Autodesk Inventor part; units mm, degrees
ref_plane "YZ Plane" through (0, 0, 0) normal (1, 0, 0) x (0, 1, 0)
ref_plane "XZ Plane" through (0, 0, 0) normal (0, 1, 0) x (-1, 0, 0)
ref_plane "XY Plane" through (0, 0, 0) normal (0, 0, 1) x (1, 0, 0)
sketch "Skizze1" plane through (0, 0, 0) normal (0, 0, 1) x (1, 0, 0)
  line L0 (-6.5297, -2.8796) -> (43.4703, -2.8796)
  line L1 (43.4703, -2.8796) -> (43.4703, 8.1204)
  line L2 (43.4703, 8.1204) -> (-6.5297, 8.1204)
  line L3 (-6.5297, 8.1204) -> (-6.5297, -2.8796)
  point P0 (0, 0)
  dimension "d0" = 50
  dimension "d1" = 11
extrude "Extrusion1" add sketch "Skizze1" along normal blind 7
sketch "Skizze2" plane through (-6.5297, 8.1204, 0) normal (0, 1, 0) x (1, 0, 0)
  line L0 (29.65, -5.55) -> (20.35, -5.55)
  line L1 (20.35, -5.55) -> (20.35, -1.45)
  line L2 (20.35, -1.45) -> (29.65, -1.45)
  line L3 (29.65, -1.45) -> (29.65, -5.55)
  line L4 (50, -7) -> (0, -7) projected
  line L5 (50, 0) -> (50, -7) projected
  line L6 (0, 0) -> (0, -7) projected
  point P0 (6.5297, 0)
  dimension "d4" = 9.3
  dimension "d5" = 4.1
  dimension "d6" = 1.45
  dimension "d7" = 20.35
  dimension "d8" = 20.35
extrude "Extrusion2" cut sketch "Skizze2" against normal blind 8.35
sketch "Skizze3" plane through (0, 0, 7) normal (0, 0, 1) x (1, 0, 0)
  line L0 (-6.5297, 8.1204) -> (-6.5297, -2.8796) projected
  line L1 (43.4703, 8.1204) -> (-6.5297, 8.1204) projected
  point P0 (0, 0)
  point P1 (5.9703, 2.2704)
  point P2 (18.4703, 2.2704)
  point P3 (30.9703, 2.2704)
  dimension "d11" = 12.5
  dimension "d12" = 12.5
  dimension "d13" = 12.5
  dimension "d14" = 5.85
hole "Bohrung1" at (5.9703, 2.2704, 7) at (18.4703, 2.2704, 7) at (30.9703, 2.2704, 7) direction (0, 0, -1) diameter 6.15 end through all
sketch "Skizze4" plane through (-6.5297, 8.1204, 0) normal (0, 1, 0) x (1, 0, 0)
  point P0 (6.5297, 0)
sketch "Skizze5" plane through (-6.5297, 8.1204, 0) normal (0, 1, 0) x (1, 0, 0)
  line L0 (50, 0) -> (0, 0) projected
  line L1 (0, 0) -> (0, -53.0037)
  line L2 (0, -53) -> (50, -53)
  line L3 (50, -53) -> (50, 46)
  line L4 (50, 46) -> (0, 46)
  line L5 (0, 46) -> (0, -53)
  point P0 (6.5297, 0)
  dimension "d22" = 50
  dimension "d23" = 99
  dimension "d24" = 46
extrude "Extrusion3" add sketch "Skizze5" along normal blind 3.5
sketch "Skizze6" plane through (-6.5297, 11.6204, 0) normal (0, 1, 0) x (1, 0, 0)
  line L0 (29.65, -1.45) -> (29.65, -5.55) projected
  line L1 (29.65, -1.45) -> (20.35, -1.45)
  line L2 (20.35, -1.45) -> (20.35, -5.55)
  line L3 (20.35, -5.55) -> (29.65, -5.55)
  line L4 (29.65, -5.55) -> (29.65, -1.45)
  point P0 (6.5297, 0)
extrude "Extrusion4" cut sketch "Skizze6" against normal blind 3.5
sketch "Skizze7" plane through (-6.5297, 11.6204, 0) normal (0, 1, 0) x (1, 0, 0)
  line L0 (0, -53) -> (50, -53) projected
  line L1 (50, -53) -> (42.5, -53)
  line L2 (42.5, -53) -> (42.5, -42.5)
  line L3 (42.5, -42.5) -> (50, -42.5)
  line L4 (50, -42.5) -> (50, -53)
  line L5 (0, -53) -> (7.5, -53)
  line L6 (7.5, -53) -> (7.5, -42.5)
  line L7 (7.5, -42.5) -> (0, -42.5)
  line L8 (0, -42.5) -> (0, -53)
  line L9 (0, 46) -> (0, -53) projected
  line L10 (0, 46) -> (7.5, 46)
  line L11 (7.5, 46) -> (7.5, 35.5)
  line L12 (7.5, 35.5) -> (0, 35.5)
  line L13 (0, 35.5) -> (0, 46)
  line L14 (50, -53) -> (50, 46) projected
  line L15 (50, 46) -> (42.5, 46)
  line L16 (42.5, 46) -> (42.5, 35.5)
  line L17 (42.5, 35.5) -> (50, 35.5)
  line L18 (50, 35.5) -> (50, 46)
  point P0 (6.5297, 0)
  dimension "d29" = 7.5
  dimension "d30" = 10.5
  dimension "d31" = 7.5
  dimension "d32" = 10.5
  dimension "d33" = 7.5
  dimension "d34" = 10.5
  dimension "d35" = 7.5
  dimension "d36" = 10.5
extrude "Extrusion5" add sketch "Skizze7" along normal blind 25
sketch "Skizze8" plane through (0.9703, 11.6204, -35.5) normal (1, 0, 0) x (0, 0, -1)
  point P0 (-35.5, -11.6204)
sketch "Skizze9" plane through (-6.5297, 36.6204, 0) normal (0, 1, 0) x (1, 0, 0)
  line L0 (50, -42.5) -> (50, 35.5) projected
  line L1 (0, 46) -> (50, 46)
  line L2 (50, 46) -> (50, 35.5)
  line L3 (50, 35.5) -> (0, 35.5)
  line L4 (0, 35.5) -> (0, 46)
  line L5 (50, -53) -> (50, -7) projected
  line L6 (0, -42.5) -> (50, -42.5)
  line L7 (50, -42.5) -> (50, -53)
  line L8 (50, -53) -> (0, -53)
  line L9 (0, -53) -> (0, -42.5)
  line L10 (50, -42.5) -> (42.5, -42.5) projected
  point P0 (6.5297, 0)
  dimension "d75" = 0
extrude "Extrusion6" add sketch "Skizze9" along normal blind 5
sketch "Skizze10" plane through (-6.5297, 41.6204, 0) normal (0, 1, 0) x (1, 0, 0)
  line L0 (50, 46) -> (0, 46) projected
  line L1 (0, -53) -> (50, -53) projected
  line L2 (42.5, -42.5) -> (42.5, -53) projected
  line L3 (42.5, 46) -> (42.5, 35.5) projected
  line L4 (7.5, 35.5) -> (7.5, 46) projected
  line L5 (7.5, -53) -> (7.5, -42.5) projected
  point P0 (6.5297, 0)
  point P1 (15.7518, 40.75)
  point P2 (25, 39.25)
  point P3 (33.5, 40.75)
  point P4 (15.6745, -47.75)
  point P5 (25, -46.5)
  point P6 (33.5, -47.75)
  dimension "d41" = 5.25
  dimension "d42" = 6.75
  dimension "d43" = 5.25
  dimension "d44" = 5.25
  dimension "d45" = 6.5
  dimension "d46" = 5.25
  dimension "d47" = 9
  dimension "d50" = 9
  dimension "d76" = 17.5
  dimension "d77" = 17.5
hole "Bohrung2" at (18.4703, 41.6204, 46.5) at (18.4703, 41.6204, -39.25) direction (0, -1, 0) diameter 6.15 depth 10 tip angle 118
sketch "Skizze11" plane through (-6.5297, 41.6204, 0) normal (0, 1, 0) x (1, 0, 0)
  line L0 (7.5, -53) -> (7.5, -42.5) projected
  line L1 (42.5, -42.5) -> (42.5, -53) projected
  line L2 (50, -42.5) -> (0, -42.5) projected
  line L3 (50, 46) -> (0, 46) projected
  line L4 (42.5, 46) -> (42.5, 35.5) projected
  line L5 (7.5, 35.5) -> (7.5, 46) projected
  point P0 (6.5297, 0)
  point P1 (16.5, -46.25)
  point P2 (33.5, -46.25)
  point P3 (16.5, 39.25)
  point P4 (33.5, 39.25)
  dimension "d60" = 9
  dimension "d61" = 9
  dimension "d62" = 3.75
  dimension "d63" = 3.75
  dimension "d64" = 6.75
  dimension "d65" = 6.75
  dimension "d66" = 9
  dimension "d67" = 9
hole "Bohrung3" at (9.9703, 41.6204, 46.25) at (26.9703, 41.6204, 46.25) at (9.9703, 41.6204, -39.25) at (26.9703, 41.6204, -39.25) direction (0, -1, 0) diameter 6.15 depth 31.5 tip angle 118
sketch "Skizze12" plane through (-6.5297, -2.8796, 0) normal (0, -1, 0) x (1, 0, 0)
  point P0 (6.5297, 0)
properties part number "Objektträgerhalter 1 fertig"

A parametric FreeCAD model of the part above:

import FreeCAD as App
import Part
import Sketcher


def add_polygon(sketch, points):
    """Adds a closed chain of lines whose ends are joined by coincident constraints."""
    first, n = sketch.GeometryCount, len(points)
    for a, b in zip(points, points[1:] + points[:1]):
        sketch.addGeometry(Part.LineSegment(App.Vector(*a, 0), App.Vector(*b, 0)), False)
    for i in range(n):
        sketch.addConstraint(Sketcher.Constraint("Coincident", first + i, 2, first + (i + 1) % n, 1))

doc = App.newDocument("Part")
body = doc.addObject("PartDesign::Body", "Body")

# Sketch on XY plane
sketch1 = body.newObject("Sketcher::SketchObject", "Sketch")
sketch1.AttachmentSupport = (doc.getObject("XY_Plane"), [""])
sketch1.MapMode = "FlatFace"
add_polygon(sketch1, [(-7, 8), (-7, -3), (43, -3), (43, 8)])  # lines 0-3
sketch1.addConstraint([
    Sketcher.Constraint("Vertical", 0),
    Sketcher.Constraint("Horizontal", 1),
    Sketcher.Constraint("Vertical", 2),
    Sketcher.Constraint("Horizontal", 3),
    Sketcher.Constraint("DistanceX", 1, 1, 1, 2, 50.0),
    Sketcher.Constraint("DistanceY", 0, 2, 0, 1, 11.0),
    Sketcher.Constraint("DistanceX", 0, 2, -1, 1, 6.5297),
    Sketcher.Constraint("DistanceY", 0, 2, -1, 1, 2.8796),
])
pad1 = body.newObject("PartDesign::Pad", "Pad")
pad1.Profile = sketch1
pad1.Length = 7

# Sketch on XZ plane
sketch2 = body.newObject("Sketcher::SketchObject", "Sketch001")
sketch2.AttachmentSupport = (doc.getObject("XZ_Plane"), [""])
sketch2.MapMode = "FlatFace"
sketch2.AttachmentOffset = App.Placement(App.Vector(0, 0, -8.1204), App.Rotation())
add_polygon(sketch2, [(13.8, 5.5), (23.1, 5.5), (23.1, 1.4), (13.8, 1.4)])  # lines 0-3
sketch2.addConstraint([
    Sketcher.Constraint("Horizontal", 0),
    Sketcher.Constraint("Vertical", 1),
    Sketcher.Constraint("Horizontal", 2),
    Sketcher.Constraint("Vertical", 3),
    Sketcher.Constraint("DistanceX", 0, 1, 0, 2, 9.3),
    Sketcher.Constraint("DistanceY", 1, 2, 1, 1, 4.1),
    Sketcher.Constraint("DistanceY", -1, 1, 1, 2, 1.45),
    Sketcher.Constraint("DistanceX", -1, 1, 0, 2, 23.1203),
])
pocket1 = body.newObject("PartDesign::Pocket", "Pocket")
pocket1.Profile = sketch2
pocket1.Length = 8.35
pocket1.Reversed = True

# Sketch on XY plane
sketch3 = body.newObject("Sketcher::SketchObject", "Sketch002")
sketch3.AttachmentSupport = (doc.getObject("XY_Plane"), [""])
sketch3.MapMode = "FlatFace"
sketch3.AttachmentOffset = App.Placement(App.Vector(0, 0, 7), App.Rotation())
sketch3.addGeometry([
    Part.Circle(App.Vector(6, 2.3, 0), App.Vector(0, 0, 1), 3.1),
    Part.Circle(App.Vector(18.5, 2.3, 0), App.Vector(0, 0, 1), 3.1),
    Part.Circle(App.Vector(31, 2.3, 0), App.Vector(0, 0, 1), 3.1),
], False)
sketch3.addConstraint([
    Sketcher.Constraint("Equal", 0, 1),
    Sketcher.Constraint("Equal", 1, 2),
    Sketcher.Constraint("Horizontal", 0, 3, 1, 3),
    Sketcher.Constraint("Horizontal", 1, 3, 2, 3),
    Sketcher.Constraint("Diameter", 0, 6.15),
    Sketcher.Constraint("DistanceX", 0, 3, 2, 3, 25.0),
    Sketcher.Constraint("DistanceX", 0, 3, 1, 3, 12.5),
    Sketcher.Constraint("DistanceX", -1, 1, 0, 3, 5.9703),
    Sketcher.Constraint("DistanceY", -1, 1, 0, 3, 2.2704),
])
doc.recompute()
hole = body.newObject("PartDesign::Hole", "Hole")
hole.Profile = sketch3
hole.ThreadType = "None"
hole.Diameter = 6.15
hole.DepthType = "ThroughAll"

# Sketch on XZ plane
sketch4 = body.newObject("Sketcher::SketchObject", "Sketch003")
sketch4.AttachmentSupport = (doc.getObject("XZ_Plane"), [""])
sketch4.MapMode = "FlatFace"
sketch4.AttachmentOffset = App.Placement(App.Vector(0, 0, -8.1204), App.Rotation())
add_polygon(sketch4, [(43, 53), (43, -46), (-7, -46), (-7, 53)])  # lines 0-3
sketch4.addConstraint([
    Sketcher.Constraint("Vertical", 0),
    Sketcher.Constraint("Horizontal", 1),
    Sketcher.Constraint("Vertical", 2),
    Sketcher.Constraint("Horizontal", 3),
    Sketcher.Constraint("DistanceX", 1, 2, 1, 1, 50.0),
    Sketcher.Constraint("DistanceY", 0, 2, 0, 1, 99.0),
    Sketcher.Constraint("DistanceY", 0, 2, -1, 1, 46.0),
    Sketcher.Constraint("DistanceX", -1, 1, 0, 2, 43.4703),
])
pad2 = body.newObject("PartDesign::Pad", "Pad001")
pad2.Profile = sketch4
pad2.Length = 3.5
pad2.Reversed = True

# Sketch on XZ plane
sketch5 = body.newObject("Sketcher::SketchObject", "Sketch004")
sketch5.AttachmentSupport = (doc.getObject("XZ_Plane"), [""])
sketch5.MapMode = "FlatFace"
sketch5.AttachmentOffset = App.Placement(App.Vector(0, 0, -11.6204), App.Rotation())
add_polygon(sketch5, [(23.1, 5.5), (23.1, 1.4), (13.8, 1.4), (13.8, 5.5)])  # lines 0-3
sketch5.addConstraint([
    Sketcher.Constraint("Vertical", 0),
    Sketcher.Constraint("Horizontal", 1),
    Sketcher.Constraint("Vertical", 2),
    Sketcher.Constraint("Horizontal", 3),
    Sketcher.Constraint("DistanceX", 1, 2, 1, 1, 9.3),
    Sketcher.Constraint("DistanceY", 0, 2, 0, 1, 4.1),
    Sketcher.Constraint("DistanceY", -1, 1, 0, 2, 1.45),
    Sketcher.Constraint("DistanceX", -1, 1, 0, 2, 23.1203),
])
pocket2 = body.newObject("PartDesign::Pocket", "Pocket001")
pocket2.Profile = sketch5
pocket2.Length = 3.5
pocket2.Reversed = True

# Sketch on XZ plane
sketch6 = body.newObject("Sketcher::SketchObject", "Sketch005")
sketch6.AttachmentSupport = (doc.getObject("XZ_Plane"), [""])
sketch6.MapMode = "FlatFace"
sketch6.AttachmentOffset = App.Placement(App.Vector(0, 0, -11.6204), App.Rotation())
add_polygon(sketch6, [(-7, 42), (-7, 53), (1, 53), (1, 42)])  # lines 0-3
add_polygon(sketch6, [(-7, -46), (-7, -36), (1, -36), (1, -46)])  # lines 4-7
add_polygon(sketch6, [(36, -36), (43, -36), (43, -46), (36, -46)])  # lines 8-11
add_polygon(sketch6, [(36, 42), (36, 53), (43, 53), (43, 42)])  # lines 12-15
sketch6.addConstraint([
    Sketcher.Constraint("Vertical", 0),
    Sketcher.Constraint("Horizontal", 1),
    Sketcher.Constraint("Vertical", 2),
    Sketcher.Constraint("Horizontal", 3),
    Sketcher.Constraint("Vertical", 4),
    Sketcher.Constraint("Horizontal", 5),
    Sketcher.Constraint("Vertical", 6),
    Sketcher.Constraint("Horizontal", 7),
    Sketcher.Constraint("Horizontal", 8),
    Sketcher.Constraint("Vertical", 9),
    Sketcher.Constraint("Horizontal", 10),
    Sketcher.Constraint("Vertical", 11),
    Sketcher.Constraint("Vertical", 12),
    Sketcher.Constraint("Horizontal", 13),
    Sketcher.Constraint("Vertical", 14),
    Sketcher.Constraint("Horizontal", 15),
    Sketcher.Constraint("Horizontal", 5, 2, 8, 2),
    Sketcher.Constraint("Horizontal", 7, 2, 9, 2),
    Sketcher.Constraint("Horizontal", 1, 2, 12, 2),
    Sketcher.Constraint("Horizontal", 3, 2, 14, 2),
    Sketcher.Constraint("Vertical", 3, 2, 4, 2),
    Sketcher.Constraint("Vertical", 2, 2, 5, 2),
    Sketcher.Constraint("Vertical", 11, 2, 12, 2),
    Sketcher.Constraint("Vertical", 9, 2, 13, 2),
    Sketcher.Constraint("Equal", 7, 8),
    Sketcher.Constraint("Equal", 2, 4),
    Sketcher.Constraint("DistanceX", 1, 1, 1, 2, 7.5),
    Sketcher.Constraint("DistanceY", 0, 1, 0, 2, 10.5),
    Sketcher.Constraint("DistanceY", -1, 1, 0, 2, 53.0),
    Sketcher.Constraint("DistanceY", 6, 2, -1, 1, 46.0),
    Sketcher.Constraint("DistanceX", 4, 2, 8, 2, 50.0),
    Sketcher.Constraint("DistanceX", 0, 2, -1, 1, 6.5297),
])
pad3 = body.newObject("PartDesign::Pad", "Pad002")
pad3.Profile = sketch6
pad3.Length = 25
pad3.Reversed = True

# Sketch on XZ plane
sketch7 = body.newObject("Sketcher::SketchObject", "Sketch006")
sketch7.AttachmentSupport = (doc.getObject("XZ_Plane"), [""])
sketch7.MapMode = "FlatFace"
sketch7.AttachmentOffset = App.Placement(App.Vector(0, 0, -36.6204), App.Rotation())
add_polygon(sketch7, [(-7, -36), (43, -36), (43, -46), (-7, -46)])  # lines 0-3
add_polygon(sketch7, [(43, 53), (43, 42), (-7, 42), (-7, 53)])  # lines 4-7
sketch7.addConstraint([
    Sketcher.Constraint("Horizontal", 0),
    Sketcher.Constraint("Vertical", 1),
    Sketcher.Constraint("Horizontal", 2),
    Sketcher.Constraint("Vertical", 3),
    Sketcher.Constraint("Vertical", 4),
    Sketcher.Constraint("Horizontal", 5),
    Sketcher.Constraint("Vertical", 6),
    Sketcher.Constraint("Horizontal", 7),
    Sketcher.Constraint("Vertical", 1, 2, 4, 2),
    Sketcher.Constraint("Vertical", 3, 2, 5, 2),
    Sketcher.Constraint("Equal", 3, 4),
    Sketcher.Constraint("DistanceX", 0, 1, 0, 2, 50.0),
    Sketcher.Constraint("DistanceY", 1, 2, 1, 1, 10.5),
    Sketcher.Constraint("DistanceY", 1, 2, -1, 1, 46.0),
    Sketcher.Constraint("DistanceY", -1, 1, 6, 2, 53.0),
    Sketcher.Constraint("DistanceX", -1, 1, 0, 2, 43.4703),
])
pad4 = body.newObject("PartDesign::Pad", "Pad003")
pad4.Profile = sketch7
pad4.Length = 5
pad4.Reversed = True

# Sketch on XZ plane
sketch8 = body.newObject("Sketcher::SketchObject", "Sketch007")
sketch8.AttachmentSupport = (doc.getObject("XZ_Plane"), [""])
sketch8.MapMode = "FlatFace"
sketch8.AttachmentOffset = App.Placement(App.Vector(0, 0, -41.6204), App.Rotation())
sketch8.addGeometry([
    Part.Circle(App.Vector(18.5, 46.5, 0), App.Vector(0, 0, 1), 3.1),
    Part.Circle(App.Vector(18.5, -39.2, 0), App.Vector(0, 0, 1), 3.1),
], False)
sketch8.addConstraint([
    Sketcher.Constraint("Equal", 0, 1),
    Sketcher.Constraint("Vertical", 0, 3, 1, 3),
    Sketcher.Constraint("Diameter", 0, 6.15),
    Sketcher.Constraint("DistanceY", -1, 1, 0, 3, 46.5),
    Sketcher.Constraint("DistanceY", 1, 3, -1, 1, 39.25),
    Sketcher.Constraint("DistanceX", -1, 1, 0, 3, 18.4703),
])
doc.recompute()
hole2 = body.newObject("PartDesign::Hole", "Hole001")
hole2.Profile = sketch8
hole2.ThreadType = "None"
hole2.Diameter = 6.15
hole2.DepthType = "Dimension"
hole2.Depth = 10
hole2.DrillPoint = "Angled"
hole2.DrillPointAngle = 118
hole2.Reversed = True

# Sketch on XZ plane
sketch9 = body.newObject("Sketcher::SketchObject", "Sketch008")
sketch9.AttachmentSupport = (doc.getObject("XZ_Plane"), [""])
sketch9.MapMode = "FlatFace"
sketch9.AttachmentOffset = App.Placement(App.Vector(0, 0, -41.6204), App.Rotation())
sketch9.addGeometry([
    Part.Circle(App.Vector(10, 46.2, 0), App.Vector(0, 0, 1), 3.1),
    Part.Circle(App.Vector(27, 46.2, 0), App.Vector(0, 0, 1), 3.1),
    Part.Circle(App.Vector(10, -39.2, 0), App.Vector(0, 0, 1), 3.1),
    Part.Circle(App.Vector(27, -39.2, 0), App.Vector(0, 0, 1), 3.1),
], False)
sketch9.addConstraint([
    Sketcher.Constraint("Equal", 0, 1),
    Sketcher.Constraint("Equal", 1, 2),
    Sketcher.Constraint("Equal", 2, 3),
    Sketcher.Constraint("Horizontal", 0, 3, 1, 3),
    Sketcher.Constraint("Horizontal", 2, 3, 3, 3),
    Sketcher.Constraint("Vertical", 0, 3, 2, 3),
    Sketcher.Constraint("Vertical", 1, 3, 3, 3),
    Sketcher.Constraint("Diameter", 0, 6.15),
    Sketcher.Constraint("DistanceX", 0, 3, 1, 3, 17.0),
    Sketcher.Constraint("DistanceY", 2, 3, 0, 3, 85.5),
    Sketcher.Constraint("DistanceY", -1, 1, 0, 3, 46.25),
    Sketcher.Constraint("DistanceX", -1, 1, 0, 3, 9.9703),
])
doc.recompute()
hole3 = body.newObject("PartDesign::Hole", "Hole002")
hole3.Profile = sketch9
hole3.ThreadType = "None"
hole3.Diameter = 6.15
hole3.DepthType = "Dimension"
hole3.Depth = 31.5
hole3.DrillPoint = "Angled"
hole3.DrillPointAngle = 118
hole3.Reversed = True

doc.recompute()
